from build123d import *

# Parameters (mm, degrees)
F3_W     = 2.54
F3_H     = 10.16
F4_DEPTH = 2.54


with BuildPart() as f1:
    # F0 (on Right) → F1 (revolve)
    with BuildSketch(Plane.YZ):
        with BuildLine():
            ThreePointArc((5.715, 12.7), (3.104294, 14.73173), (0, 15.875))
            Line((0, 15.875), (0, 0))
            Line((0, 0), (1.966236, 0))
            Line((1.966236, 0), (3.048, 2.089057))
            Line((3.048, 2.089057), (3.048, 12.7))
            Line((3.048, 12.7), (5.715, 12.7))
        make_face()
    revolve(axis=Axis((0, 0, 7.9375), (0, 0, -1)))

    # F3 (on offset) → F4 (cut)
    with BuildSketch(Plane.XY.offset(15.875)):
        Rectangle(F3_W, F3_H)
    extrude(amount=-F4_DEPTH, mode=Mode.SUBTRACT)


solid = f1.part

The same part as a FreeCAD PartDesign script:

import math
import FreeCAD as App
import Part
import Sketcher
from FreeCAD import Vector
Q = App.Units.Quantity

doc = App.newDocument("Part")
body = doc.addObject("PartDesign::Body", "Body")

# Sketch on YZ plane
sketch1 = body.newObject("Sketcher::SketchObject", "Sketch")
sketch1.AttachmentSupport = (doc.getObject("YZ_Plane"), [""])
sketch1.MapMode = "FlatFace"
sketch1.addGeometry([
    Part.ArcOfCircle(Part.Circle(Vector(-2.1, 5.3, 0), Vector(0, 0, 1), 10.8), math.radians(43), math.radians(79)),  # 0
    Part.LineSegment(Vector(0, 15.9, 0), Vector(0, 0, 0)),  # 1
    Part.LineSegment(Vector(0, 0, 0), Vector(2, 0, 0)),  # 2
    Part.LineSegment(Vector(2, 0, 0), Vector(3, 2.1, 0)),  # 3
    Part.LineSegment(Vector(3, 2.1, 0), Vector(3, 12.7, 0)),  # 4
    Part.LineSegment(Vector(3, 12.7, 0), Vector(5.7, 12.7, 0)),  # 5
], False)
sketch1.addConstraint([
    Sketcher.Constraint("Coincident", 0, 2, 1, 1),
    Sketcher.Constraint("Coincident", 1, 2, 2, 1),
    Sketcher.Constraint("Coincident", 2, 2, 3, 1),
    Sketcher.Constraint("Coincident", 3, 2, 4, 1),
    Sketcher.Constraint("Coincident", 4, 2, 5, 1),
    Sketcher.Constraint("Coincident", 5, 2, 0, 1),
    Sketcher.Constraint("Vertical", 1),
    Sketcher.Constraint("Horizontal", 2),
    Sketcher.Constraint("Vertical", 4),
    Sketcher.Constraint("Horizontal", 5),
    Sketcher.Constraint("Coincident", 1, 2, -1, 1),
    Sketcher.Constraint("DistanceY", -1, 1, 4, 2, Q("0.5 in")),
    Sketcher.Constraint("DistanceX", 5, 1, 5, 2, Q("0.105 in")),
    Sketcher.Constraint("DistanceY", 1, 2, 1, 1, Q("0.625 in")),
    Sketcher.Constraint("DistanceX", -1, 1, 3, 2, Q("0.12 in")),
    Sketcher.Constraint("Radius", 0, 10.767539),
    Sketcher.Constraint("DistanceX", 2, 1, 2, 2, 1.966236),
    Sketcher.Constraint("DistanceY", 4, 1, 4, 2, 10.610943),
])
revolution = body.newObject("PartDesign::Revolution", "Revolution")
revolution.Profile = sketch1
revolution.ReferenceAxis = (sketch1, ["V_Axis"])
revolution.Angle = 360

# Sketch on XY plane
sketch2 = body.newObject("Sketcher::SketchObject", "Sketch001")
sketch2.AttachmentSupport = (doc.getObject("XY_Plane"), [""])
sketch2.MapMode = "FlatFace"
sketch2.AttachmentOffset = App.Placement(Vector(0, 0, 0.625 * 25.4), App.Rotation())
sketch2.addGeometry([
    Part.LineSegment(Vector(-1.3, 5.1, 0), Vector(-1.3, -5.1, 0)),
    Part.LineSegment(Vector(-1.3, -5.1, 0), Vector(1.3, -5.1, 0)),
    Part.LineSegment(Vector(1.3, -5.1, 0), Vector(1.3, 5.1, 0)),
    Part.LineSegment(Vector(1.3, 5.1, 0), Vector(-1.3, 5.1, 0)),
], False)
sketch2.addConstraint([
    Sketcher.Constraint("Coincident", 0, 2, 1, 1),
    Sketcher.Constraint("Coincident", 1, 2, 2, 1),
    Sketcher.Constraint("Coincident", 2, 2, 3, 1),
    Sketcher.Constraint("Coincident", 3, 2, 0, 1),
    Sketcher.Constraint("Vertical", 0),
    Sketcher.Constraint("Horizontal", 1),
    Sketcher.Constraint("Vertical", 2),
    Sketcher.Constraint("Horizontal", 3),
    Sketcher.Constraint("Symmetric", 0, 2, 2, 2, -1, 1),
    Sketcher.Constraint("DistanceX", 1, 1, 1, 2, Q("0.1 in")),
    Sketcher.Constraint("DistanceY", 0, 2, 0, 1, Q("0.4 in")),
])
pocket1 = body.newObject("PartDesign::Pocket", "Pocket")
pocket1.Profile = sketch2
pocket1.Length = Q("0.1 in")

doc.recompute()
